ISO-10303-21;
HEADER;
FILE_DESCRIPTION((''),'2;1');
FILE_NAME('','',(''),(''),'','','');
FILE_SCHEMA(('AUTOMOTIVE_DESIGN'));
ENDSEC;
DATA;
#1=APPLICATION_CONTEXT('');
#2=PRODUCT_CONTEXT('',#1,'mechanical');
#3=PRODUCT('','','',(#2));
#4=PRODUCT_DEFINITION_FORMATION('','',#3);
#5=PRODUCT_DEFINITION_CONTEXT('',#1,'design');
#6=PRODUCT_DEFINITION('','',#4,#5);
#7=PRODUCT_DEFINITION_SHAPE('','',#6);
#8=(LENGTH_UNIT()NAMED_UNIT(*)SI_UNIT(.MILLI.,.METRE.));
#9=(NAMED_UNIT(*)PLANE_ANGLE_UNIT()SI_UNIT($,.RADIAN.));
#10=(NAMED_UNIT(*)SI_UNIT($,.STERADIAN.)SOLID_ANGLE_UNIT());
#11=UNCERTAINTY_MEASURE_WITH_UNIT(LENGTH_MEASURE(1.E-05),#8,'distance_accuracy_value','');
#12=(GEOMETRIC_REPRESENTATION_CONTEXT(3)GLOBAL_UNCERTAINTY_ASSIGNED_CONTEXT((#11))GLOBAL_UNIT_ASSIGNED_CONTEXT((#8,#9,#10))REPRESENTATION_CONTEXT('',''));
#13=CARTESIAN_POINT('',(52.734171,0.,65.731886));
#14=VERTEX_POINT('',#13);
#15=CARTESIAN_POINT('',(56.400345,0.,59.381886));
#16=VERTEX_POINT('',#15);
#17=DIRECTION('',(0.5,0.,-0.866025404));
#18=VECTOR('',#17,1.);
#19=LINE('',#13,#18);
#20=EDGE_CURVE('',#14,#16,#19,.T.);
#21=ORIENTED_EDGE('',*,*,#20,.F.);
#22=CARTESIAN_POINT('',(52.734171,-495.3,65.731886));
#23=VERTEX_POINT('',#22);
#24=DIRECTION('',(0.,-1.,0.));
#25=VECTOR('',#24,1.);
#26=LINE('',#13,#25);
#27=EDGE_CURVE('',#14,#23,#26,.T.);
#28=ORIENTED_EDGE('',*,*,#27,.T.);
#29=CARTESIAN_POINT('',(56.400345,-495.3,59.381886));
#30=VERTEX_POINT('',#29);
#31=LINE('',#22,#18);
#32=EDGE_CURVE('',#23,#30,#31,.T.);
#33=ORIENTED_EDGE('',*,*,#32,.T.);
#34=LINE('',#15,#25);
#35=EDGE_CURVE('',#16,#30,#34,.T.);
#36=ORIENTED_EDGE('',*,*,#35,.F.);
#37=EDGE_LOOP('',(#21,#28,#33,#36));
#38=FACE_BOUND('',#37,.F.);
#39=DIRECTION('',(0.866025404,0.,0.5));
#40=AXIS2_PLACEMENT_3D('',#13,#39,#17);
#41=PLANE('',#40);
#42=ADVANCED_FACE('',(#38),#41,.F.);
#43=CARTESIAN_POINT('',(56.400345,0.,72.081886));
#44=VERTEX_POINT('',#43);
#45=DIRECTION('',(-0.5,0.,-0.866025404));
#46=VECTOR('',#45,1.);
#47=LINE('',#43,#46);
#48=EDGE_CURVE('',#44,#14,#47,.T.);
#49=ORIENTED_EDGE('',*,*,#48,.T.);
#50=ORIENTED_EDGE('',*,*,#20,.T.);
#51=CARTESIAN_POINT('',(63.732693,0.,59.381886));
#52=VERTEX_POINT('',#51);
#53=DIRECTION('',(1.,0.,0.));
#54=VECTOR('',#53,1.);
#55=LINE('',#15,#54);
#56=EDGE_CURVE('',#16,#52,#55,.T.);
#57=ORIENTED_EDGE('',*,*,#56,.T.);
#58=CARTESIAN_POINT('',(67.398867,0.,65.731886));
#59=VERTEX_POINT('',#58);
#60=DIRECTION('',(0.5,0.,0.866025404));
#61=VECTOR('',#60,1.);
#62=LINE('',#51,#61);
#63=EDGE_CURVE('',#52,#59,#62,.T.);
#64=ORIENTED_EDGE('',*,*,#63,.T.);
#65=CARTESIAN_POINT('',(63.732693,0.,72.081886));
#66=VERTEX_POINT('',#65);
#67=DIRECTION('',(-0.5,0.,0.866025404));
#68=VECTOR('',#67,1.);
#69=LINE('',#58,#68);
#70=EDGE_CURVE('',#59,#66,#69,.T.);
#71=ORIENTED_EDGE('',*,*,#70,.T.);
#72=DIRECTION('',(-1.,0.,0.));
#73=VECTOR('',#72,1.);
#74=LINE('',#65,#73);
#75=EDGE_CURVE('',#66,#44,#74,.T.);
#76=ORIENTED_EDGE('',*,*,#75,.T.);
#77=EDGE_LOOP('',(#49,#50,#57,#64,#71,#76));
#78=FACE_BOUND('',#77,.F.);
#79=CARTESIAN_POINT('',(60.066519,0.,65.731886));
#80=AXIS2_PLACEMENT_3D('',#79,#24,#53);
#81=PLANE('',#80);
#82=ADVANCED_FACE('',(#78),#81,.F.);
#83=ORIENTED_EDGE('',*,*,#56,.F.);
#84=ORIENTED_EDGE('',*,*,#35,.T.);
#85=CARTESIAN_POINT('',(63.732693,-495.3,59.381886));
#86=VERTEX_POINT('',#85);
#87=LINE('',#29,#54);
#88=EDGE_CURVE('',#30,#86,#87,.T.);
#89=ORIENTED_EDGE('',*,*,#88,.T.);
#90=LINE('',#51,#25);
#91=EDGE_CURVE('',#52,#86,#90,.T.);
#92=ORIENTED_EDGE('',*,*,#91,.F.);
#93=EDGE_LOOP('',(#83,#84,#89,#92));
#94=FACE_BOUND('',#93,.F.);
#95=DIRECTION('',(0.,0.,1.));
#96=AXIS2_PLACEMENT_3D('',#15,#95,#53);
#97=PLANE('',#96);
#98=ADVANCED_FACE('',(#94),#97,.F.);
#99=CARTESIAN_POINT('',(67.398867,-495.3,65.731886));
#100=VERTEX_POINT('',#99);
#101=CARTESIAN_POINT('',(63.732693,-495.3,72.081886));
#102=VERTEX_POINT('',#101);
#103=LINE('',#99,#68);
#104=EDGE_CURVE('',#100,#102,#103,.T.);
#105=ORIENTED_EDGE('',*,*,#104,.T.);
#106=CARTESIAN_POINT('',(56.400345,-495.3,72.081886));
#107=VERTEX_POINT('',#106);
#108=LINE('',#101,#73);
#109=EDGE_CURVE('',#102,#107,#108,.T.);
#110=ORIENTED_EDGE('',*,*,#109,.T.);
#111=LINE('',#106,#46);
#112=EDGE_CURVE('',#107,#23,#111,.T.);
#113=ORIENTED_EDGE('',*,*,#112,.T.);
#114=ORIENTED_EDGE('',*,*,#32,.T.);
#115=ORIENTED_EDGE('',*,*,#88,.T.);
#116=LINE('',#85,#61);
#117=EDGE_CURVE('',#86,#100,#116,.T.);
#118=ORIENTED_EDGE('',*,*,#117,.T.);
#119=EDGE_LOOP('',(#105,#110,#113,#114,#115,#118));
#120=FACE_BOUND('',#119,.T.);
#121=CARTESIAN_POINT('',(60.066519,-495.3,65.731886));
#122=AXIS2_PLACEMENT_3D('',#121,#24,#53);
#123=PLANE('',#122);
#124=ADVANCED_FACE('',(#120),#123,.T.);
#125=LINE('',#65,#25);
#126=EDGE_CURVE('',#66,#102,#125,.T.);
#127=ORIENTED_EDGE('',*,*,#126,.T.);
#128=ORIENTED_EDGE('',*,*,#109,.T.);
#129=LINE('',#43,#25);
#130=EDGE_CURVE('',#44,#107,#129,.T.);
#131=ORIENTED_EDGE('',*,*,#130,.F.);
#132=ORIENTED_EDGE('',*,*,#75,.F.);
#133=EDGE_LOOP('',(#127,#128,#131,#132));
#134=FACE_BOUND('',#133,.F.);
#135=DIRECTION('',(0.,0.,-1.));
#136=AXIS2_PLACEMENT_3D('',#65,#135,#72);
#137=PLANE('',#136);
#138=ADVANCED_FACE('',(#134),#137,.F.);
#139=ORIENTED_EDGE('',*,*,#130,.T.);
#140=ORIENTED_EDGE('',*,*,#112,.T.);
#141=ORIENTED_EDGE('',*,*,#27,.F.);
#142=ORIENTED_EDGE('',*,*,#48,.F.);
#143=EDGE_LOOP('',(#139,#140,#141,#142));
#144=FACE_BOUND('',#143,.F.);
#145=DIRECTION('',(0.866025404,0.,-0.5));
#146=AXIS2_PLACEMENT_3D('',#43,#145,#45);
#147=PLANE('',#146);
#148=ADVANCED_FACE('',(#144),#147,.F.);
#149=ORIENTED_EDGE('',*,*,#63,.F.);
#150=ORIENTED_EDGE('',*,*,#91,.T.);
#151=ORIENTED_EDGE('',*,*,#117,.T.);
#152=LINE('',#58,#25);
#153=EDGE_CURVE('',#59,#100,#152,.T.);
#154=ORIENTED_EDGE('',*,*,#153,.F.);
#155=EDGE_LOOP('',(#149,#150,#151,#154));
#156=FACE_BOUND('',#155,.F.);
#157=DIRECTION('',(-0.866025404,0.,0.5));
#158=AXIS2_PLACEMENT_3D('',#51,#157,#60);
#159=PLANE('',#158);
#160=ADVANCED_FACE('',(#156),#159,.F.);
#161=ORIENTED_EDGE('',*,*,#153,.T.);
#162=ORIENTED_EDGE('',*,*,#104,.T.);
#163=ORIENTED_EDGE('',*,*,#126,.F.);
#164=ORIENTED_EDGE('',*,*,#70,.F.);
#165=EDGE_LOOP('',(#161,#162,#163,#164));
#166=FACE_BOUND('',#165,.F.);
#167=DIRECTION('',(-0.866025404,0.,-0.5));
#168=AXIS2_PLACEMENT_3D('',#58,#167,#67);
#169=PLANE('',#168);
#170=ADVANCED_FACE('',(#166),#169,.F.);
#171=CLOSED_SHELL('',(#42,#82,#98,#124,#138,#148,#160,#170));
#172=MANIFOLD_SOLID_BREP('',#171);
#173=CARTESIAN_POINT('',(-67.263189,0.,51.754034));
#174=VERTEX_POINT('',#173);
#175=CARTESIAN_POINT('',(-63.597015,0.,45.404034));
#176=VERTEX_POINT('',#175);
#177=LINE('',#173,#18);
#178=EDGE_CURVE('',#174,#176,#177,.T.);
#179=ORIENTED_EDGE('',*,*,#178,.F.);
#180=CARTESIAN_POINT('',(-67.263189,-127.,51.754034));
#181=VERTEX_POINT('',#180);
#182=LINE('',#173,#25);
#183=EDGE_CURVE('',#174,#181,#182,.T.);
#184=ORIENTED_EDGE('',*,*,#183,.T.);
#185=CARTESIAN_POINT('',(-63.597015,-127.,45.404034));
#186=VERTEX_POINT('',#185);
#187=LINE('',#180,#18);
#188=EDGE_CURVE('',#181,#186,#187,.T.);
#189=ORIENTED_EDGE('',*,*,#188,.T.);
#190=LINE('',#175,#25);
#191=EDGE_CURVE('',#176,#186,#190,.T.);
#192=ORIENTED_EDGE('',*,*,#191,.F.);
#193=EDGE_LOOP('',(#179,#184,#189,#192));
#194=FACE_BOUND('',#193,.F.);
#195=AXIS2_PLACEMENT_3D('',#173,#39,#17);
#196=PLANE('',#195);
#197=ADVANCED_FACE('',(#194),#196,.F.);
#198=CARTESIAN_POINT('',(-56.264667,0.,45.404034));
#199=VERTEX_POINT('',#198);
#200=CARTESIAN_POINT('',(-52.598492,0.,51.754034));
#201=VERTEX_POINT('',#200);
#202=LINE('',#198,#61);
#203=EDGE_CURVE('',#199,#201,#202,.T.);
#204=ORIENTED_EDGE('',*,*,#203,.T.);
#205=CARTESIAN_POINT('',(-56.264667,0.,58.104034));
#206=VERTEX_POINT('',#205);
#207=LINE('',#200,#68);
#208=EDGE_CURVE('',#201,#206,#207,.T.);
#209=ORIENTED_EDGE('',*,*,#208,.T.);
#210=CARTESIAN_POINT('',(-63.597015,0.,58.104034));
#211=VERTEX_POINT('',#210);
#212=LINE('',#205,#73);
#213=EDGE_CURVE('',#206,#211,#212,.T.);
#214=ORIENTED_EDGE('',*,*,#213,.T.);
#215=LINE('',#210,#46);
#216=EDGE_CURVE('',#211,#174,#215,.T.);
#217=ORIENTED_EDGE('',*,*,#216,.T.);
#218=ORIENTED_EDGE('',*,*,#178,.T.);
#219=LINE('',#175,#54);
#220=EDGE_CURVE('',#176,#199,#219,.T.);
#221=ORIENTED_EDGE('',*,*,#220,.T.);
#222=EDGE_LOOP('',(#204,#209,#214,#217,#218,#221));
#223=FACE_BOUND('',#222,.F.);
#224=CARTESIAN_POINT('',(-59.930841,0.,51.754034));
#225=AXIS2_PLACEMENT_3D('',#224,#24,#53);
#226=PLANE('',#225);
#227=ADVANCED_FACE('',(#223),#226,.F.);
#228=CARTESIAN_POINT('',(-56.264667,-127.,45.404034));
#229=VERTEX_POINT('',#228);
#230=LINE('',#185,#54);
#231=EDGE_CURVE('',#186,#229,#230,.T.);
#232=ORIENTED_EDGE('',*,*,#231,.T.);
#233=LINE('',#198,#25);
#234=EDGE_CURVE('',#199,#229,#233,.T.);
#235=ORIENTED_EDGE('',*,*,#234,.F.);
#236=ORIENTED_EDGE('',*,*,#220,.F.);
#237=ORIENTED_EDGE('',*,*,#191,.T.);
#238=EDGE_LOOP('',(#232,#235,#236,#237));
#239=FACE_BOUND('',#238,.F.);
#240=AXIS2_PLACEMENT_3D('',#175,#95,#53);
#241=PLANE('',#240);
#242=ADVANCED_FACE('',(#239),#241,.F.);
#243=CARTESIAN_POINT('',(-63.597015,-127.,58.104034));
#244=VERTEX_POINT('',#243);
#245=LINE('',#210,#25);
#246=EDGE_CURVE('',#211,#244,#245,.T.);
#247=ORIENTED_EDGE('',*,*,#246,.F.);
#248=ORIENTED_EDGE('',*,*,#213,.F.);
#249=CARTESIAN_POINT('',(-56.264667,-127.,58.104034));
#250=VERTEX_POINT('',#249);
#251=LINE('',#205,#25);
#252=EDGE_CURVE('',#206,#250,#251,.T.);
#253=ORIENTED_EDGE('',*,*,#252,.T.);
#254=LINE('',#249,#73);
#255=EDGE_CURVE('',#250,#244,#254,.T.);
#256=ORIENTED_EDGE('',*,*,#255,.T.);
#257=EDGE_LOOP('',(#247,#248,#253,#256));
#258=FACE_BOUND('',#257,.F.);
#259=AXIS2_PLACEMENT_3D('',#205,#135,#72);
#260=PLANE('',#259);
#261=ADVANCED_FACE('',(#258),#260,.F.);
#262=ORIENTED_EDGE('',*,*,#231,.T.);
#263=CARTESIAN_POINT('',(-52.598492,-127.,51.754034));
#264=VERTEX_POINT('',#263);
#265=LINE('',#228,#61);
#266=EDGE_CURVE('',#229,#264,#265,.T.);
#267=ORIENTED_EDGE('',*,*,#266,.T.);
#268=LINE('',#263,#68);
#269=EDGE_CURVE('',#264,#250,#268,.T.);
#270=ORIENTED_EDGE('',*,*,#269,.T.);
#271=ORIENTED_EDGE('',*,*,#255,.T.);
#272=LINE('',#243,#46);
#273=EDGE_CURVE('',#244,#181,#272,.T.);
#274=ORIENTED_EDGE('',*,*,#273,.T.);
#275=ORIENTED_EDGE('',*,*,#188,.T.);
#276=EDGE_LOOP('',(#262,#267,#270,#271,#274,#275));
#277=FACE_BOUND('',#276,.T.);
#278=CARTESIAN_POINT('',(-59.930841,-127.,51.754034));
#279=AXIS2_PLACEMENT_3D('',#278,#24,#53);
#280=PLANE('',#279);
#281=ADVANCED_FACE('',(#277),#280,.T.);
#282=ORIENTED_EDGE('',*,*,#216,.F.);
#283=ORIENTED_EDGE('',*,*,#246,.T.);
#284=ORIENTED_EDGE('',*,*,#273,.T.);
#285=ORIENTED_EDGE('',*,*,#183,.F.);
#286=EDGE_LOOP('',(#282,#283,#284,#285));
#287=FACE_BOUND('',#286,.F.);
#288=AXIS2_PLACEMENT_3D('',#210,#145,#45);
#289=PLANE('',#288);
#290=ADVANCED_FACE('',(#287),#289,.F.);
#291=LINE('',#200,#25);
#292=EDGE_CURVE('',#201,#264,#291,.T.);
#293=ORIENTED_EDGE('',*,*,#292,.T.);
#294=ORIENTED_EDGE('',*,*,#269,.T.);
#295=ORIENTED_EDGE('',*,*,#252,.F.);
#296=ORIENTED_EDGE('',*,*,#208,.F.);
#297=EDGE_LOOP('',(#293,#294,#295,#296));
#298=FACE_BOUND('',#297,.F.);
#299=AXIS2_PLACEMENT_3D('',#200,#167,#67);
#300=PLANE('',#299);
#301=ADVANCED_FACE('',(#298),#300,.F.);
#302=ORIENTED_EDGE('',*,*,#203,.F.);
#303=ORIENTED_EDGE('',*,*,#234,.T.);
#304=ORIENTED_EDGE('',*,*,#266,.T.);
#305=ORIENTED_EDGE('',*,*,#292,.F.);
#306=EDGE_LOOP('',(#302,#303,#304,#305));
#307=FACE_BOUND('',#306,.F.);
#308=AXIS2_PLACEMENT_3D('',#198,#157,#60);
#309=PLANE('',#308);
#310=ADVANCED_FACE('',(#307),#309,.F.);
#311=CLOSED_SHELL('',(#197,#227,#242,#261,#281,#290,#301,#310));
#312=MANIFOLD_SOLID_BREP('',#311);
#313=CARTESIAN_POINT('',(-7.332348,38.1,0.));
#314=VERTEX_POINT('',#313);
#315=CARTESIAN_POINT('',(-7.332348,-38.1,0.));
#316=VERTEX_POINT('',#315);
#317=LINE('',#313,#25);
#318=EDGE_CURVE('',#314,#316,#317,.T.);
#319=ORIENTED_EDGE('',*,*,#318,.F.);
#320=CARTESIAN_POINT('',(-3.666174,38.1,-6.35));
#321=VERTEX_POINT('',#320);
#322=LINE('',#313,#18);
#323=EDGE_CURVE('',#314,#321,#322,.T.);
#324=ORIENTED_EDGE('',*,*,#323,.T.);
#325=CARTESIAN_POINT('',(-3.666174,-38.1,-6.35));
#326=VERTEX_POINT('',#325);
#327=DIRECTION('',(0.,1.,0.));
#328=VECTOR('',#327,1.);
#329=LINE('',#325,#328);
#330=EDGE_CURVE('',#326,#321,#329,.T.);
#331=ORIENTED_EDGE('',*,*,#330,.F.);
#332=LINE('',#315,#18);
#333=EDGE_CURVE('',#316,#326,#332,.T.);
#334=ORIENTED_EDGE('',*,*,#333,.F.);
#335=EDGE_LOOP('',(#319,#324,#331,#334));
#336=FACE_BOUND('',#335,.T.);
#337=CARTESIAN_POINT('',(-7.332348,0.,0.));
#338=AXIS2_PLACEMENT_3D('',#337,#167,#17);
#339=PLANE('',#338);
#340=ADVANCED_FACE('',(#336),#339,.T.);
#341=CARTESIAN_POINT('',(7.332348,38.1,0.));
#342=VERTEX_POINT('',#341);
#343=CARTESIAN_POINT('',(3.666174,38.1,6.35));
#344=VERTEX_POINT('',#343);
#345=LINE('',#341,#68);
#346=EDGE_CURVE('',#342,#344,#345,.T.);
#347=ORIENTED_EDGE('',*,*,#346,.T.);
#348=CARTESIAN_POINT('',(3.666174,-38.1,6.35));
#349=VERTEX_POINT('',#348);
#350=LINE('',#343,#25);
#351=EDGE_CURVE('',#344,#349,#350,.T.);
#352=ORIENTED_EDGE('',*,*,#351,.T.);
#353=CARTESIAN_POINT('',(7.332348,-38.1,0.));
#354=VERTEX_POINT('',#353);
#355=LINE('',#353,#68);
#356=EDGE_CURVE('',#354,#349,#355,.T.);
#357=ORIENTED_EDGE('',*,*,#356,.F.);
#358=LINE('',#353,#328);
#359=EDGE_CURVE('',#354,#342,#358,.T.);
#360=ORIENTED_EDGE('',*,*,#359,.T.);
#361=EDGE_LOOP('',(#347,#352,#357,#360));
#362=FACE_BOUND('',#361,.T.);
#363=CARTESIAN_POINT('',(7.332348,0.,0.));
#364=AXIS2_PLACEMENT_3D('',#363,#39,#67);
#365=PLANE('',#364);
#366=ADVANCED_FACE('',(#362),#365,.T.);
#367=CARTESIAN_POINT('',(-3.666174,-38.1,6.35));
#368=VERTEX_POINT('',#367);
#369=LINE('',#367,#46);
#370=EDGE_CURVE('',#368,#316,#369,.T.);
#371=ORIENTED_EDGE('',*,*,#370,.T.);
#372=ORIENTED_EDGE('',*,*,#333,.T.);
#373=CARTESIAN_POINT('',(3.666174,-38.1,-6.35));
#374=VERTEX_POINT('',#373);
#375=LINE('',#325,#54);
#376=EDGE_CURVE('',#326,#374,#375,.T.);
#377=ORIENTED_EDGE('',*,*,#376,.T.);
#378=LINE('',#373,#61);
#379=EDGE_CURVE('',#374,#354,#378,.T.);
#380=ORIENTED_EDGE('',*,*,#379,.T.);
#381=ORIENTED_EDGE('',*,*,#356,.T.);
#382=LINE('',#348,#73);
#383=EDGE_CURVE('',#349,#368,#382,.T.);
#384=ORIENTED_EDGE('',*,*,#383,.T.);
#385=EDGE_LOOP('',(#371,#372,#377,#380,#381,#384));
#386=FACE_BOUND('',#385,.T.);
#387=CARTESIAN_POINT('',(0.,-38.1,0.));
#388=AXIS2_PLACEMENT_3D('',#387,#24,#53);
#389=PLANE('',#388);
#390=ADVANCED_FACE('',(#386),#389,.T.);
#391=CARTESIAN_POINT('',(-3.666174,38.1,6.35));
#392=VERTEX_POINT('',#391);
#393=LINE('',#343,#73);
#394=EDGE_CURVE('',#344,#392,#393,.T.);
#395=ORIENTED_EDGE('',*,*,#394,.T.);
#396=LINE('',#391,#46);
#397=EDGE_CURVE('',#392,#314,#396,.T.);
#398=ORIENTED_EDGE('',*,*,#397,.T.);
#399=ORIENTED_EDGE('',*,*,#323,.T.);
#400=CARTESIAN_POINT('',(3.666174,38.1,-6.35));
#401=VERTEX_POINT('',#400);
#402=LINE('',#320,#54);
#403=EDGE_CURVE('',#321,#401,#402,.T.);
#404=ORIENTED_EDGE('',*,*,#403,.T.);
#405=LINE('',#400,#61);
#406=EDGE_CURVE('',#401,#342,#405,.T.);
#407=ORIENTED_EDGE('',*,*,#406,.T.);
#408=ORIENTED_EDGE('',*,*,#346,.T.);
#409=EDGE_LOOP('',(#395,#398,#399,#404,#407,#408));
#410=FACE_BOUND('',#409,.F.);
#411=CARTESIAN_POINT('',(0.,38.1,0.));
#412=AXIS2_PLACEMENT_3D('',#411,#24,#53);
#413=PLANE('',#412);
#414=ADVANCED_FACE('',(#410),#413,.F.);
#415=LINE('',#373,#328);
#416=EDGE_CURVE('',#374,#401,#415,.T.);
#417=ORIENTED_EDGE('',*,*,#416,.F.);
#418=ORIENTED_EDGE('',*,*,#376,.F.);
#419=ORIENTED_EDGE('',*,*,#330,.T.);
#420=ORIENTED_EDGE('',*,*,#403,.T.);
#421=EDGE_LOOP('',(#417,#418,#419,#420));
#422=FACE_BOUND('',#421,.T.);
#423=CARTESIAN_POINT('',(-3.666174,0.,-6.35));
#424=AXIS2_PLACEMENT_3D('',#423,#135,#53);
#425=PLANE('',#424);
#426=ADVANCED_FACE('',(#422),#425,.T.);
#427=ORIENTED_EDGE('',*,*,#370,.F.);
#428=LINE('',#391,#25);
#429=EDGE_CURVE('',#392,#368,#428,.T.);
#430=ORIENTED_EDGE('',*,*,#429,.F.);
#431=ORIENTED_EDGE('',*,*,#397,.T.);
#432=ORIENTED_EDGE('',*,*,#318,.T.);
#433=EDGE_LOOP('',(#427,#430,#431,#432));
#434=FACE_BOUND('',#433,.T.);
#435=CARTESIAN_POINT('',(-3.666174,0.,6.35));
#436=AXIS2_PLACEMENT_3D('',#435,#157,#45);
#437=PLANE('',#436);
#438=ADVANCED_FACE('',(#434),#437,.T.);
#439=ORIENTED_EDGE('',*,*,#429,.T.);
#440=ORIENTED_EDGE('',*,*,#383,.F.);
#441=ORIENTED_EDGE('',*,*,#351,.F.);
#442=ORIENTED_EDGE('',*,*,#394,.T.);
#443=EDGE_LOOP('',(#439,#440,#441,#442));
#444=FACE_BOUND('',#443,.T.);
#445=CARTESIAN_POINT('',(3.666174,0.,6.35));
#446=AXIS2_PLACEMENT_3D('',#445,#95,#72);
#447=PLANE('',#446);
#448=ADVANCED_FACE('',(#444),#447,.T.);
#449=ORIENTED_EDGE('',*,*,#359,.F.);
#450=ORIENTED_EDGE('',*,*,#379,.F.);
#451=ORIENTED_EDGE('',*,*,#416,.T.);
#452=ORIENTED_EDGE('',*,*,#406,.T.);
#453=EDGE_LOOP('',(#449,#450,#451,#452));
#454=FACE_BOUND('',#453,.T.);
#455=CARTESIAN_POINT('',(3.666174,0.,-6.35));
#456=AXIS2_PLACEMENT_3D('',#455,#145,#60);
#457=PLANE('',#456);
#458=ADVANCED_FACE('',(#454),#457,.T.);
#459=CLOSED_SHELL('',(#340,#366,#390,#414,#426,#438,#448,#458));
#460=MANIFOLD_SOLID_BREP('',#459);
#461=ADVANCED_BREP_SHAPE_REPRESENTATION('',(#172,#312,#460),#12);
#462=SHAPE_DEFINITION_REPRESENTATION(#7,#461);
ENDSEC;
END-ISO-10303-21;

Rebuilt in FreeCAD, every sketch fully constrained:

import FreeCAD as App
import Part
import Sketcher
Q = App.Units.Quantity

doc = App.newDocument("Part")
body = doc.addObject("PartDesign::Body", "Body")

sketch1 = body.newObject("Sketcher::SketchObject", "Sketch")
sketch1.AttachmentSupport = (doc.getObject("XZ_Plane"), [""])
sketch1.MapMode = "FlatFace"
sketch1.addGeometry([
    Part.LineSegment(App.Vector(7, 0, 0), App.Vector(4, 6, 0)),
    Part.LineSegment(App.Vector(4, 6, 0), App.Vector(-4, 6, 0)),
    Part.LineSegment(App.Vector(-4, 6, 0), App.Vector(-7, 0, 0)),
    Part.LineSegment(App.Vector(-7, 0, 0), App.Vector(-4, -6, 0)),
    Part.LineSegment(App.Vector(-4, -6, 0), App.Vector(4, -6, 0)),
    Part.LineSegment(App.Vector(4, -6, 0), App.Vector(7, 0, 0)),
], False)
sketch1.addConstraint([
    Sketcher.Constraint("Coincident", 0, 2, 1, 1),
    Sketcher.Constraint("Coincident", 1, 2, 2, 1),
    Sketcher.Constraint("Coincident", 2, 2, 3, 1),
    Sketcher.Constraint("Coincident", 3, 2, 4, 1),
    Sketcher.Constraint("Coincident", 4, 2, 5, 1),
    Sketcher.Constraint("Coincident", 5, 2, 0, 1),
    Sketcher.Constraint("Horizontal", 1),
    Sketcher.Constraint("Horizontal", 4),
    Sketcher.Constraint("Symmetric", 0, 2, 3, 2, -1, 1),
    Sketcher.Constraint("Symmetric", 2, 2, 5, 2, -1, 1),
    Sketcher.Constraint("PointOnObject", 2, 2, -1),
    Sketcher.Constraint("Parallel", 2, 5),
    Sketcher.Constraint("Vertical", 1, 2, 3, 2),
    Sketcher.Constraint("Angle", 0, Q("120 deg")),
    Sketcher.Constraint("DistanceY", 3, 2, 1, 2, Q("0.5 in")),
    Sketcher.Constraint("DistanceX", 1, 2, 1, 1, 7.332348),
])
pad1 = body.newObject("PartDesign::Pad", "Pad")
pad1.Profile = sketch1
pad1.Length = Q("3 in")
pad1.Midplane = True
body2 = doc.addObject("PartDesign::Body", "Body001")

sketch2 = body2.newObject("Sketcher::SketchObject", "Sketch001")
sketch2.AttachmentSupport = (doc.getObject("XZ_Plane001"), [""])
sketch2.MapMode = "FlatFace"
sketch2.addGeometry([
    Part.LineSegment(App.Vector(-53, 52, 0), App.Vector(-56, 58, 0)),
    Part.LineSegment(App.Vector(-56, 58, 0), App.Vector(-64, 58, 0)),
    Part.LineSegment(App.Vector(-64, 58, 0), App.Vector(-67, 52, 0)),
    Part.LineSegment(App.Vector(-67, 52, 0), App.Vector(-64, 45, 0)),
    Part.LineSegment(App.Vector(-64, 45, 0), App.Vector(-56, 45, 0)),
    Part.LineSegment(App.Vector(-56, 45, 0), App.Vector(-53, 52, 0)),
], False)
sketch2.addConstraint([
    Sketcher.Constraint("Coincident", 0, 2, 1, 1),
    Sketcher.Constraint("Coincident", 1, 2, 2, 1),
    Sketcher.Constraint("Coincident", 2, 2, 3, 1),
    Sketcher.Constraint("Coincident", 3, 2, 4, 1),
    Sketcher.Constraint("Coincident", 4, 2, 5, 1),
    Sketcher.Constraint("Coincident", 5, 2, 0, 1),
    Sketcher.Constraint("Horizontal", 1),
    Sketcher.Constraint("Horizontal", 4),
    Sketcher.Constraint("Parallel", 0, 3),
    Sketcher.Constraint("Parallel", 2, 5),
    Sketcher.Constraint("Horizontal", 2, 2, 5, 2),
    Sketcher.Constraint("Vertical", 1, 2, 3, 2),
    Sketcher.Constraint("Vertical", 0, 2, 4, 2),
    Sketcher.Constraint("Angle", 0, Q("120 deg")),
    Sketcher.Constraint("DistanceY", 3, 2, 1, 2, Q("0.5 in")),
    Sketcher.Constraint("DistanceX", 1, 2, 1, 1, 7.332348),
    Sketcher.Constraint("DistanceX", 2, 2, -1, 1, 67.263189),
    Sketcher.Constraint("DistanceY", -1, 1, 0, 2, 58.104034),
])
pad2 = body2.newObject("PartDesign::Pad", "Pad001")
pad2.Profile = sketch2
pad2.Length = Q("5 in")
body3 = doc.addObject("PartDesign::Body", "Body002")

sketch3 = body3.newObject("Sketcher::SketchObject", "Sketch002")
sketch3.AttachmentSupport = (doc.getObject("XZ_Plane002"), [""])
sketch3.MapMode = "FlatFace"
sketch3.addGeometry([
    Part.LineSegment(App.Vector(67, 66, 0), App.Vector(64, 72, 0)),
    Part.LineSegment(App.Vector(64, 72, 0), App.Vector(56, 72, 0)),
    Part.LineSegment(App.Vector(56, 72, 0), App.Vector(53, 66, 0)),
    Part.LineSegment(App.Vector(53, 66, 0), App.Vector(56, 59, 0)),
    Part.LineSegment(App.Vector(56, 59, 0), App.Vector(64, 59, 0)),
    Part.LineSegment(App.Vector(64, 59, 0), App.Vector(67, 66, 0)),
], False)
sketch3.addConstraint([
    Sketcher.Constraint("Coincident", 0, 2, 1, 1),
    Sketcher.Constraint("Coincident", 1, 2, 2, 1),
    Sketcher.Constraint("Coincident", 2, 2, 3, 1),
    Sketcher.Constraint("Coincident", 3, 2, 4, 1),
    Sketcher.Constraint("Coincident", 4, 2, 5, 1),
    Sketcher.Constraint("Coincident", 5, 2, 0, 1),
    Sketcher.Constraint("Horizontal", 1),
    Sketcher.Constraint("Horizontal", 4),
    Sketcher.Constraint("Parallel", 0, 3),
    Sketcher.Constraint("Parallel", 2, 5),
    Sketcher.Constraint("Horizontal", 2, 2, 5, 2),
    Sketcher.Constraint("Vertical", 1, 2, 3, 2),
    Sketcher.Constraint("Vertical", 0, 2, 4, 2),
    Sketcher.Constraint("Angle", 0, Q("120 deg")),
    Sketcher.Constraint("DistanceY", 3, 2, 1, 2, Q("0.5 in")),
    Sketcher.Constraint("DistanceX", 1, 2, 1, 1, 7.332348),
    Sketcher.Constraint("DistanceX", -1, 1, 2, 2, 52.734171),
    Sketcher.Constraint("DistanceY", -1, 1, 0, 2, 72.081886),
])
pad3 = body3.newObject("PartDesign::Pad", "Pad002")
pad3.Profile = sketch3
pad3.Length = Q("19.5 in")

doc.recompute()
